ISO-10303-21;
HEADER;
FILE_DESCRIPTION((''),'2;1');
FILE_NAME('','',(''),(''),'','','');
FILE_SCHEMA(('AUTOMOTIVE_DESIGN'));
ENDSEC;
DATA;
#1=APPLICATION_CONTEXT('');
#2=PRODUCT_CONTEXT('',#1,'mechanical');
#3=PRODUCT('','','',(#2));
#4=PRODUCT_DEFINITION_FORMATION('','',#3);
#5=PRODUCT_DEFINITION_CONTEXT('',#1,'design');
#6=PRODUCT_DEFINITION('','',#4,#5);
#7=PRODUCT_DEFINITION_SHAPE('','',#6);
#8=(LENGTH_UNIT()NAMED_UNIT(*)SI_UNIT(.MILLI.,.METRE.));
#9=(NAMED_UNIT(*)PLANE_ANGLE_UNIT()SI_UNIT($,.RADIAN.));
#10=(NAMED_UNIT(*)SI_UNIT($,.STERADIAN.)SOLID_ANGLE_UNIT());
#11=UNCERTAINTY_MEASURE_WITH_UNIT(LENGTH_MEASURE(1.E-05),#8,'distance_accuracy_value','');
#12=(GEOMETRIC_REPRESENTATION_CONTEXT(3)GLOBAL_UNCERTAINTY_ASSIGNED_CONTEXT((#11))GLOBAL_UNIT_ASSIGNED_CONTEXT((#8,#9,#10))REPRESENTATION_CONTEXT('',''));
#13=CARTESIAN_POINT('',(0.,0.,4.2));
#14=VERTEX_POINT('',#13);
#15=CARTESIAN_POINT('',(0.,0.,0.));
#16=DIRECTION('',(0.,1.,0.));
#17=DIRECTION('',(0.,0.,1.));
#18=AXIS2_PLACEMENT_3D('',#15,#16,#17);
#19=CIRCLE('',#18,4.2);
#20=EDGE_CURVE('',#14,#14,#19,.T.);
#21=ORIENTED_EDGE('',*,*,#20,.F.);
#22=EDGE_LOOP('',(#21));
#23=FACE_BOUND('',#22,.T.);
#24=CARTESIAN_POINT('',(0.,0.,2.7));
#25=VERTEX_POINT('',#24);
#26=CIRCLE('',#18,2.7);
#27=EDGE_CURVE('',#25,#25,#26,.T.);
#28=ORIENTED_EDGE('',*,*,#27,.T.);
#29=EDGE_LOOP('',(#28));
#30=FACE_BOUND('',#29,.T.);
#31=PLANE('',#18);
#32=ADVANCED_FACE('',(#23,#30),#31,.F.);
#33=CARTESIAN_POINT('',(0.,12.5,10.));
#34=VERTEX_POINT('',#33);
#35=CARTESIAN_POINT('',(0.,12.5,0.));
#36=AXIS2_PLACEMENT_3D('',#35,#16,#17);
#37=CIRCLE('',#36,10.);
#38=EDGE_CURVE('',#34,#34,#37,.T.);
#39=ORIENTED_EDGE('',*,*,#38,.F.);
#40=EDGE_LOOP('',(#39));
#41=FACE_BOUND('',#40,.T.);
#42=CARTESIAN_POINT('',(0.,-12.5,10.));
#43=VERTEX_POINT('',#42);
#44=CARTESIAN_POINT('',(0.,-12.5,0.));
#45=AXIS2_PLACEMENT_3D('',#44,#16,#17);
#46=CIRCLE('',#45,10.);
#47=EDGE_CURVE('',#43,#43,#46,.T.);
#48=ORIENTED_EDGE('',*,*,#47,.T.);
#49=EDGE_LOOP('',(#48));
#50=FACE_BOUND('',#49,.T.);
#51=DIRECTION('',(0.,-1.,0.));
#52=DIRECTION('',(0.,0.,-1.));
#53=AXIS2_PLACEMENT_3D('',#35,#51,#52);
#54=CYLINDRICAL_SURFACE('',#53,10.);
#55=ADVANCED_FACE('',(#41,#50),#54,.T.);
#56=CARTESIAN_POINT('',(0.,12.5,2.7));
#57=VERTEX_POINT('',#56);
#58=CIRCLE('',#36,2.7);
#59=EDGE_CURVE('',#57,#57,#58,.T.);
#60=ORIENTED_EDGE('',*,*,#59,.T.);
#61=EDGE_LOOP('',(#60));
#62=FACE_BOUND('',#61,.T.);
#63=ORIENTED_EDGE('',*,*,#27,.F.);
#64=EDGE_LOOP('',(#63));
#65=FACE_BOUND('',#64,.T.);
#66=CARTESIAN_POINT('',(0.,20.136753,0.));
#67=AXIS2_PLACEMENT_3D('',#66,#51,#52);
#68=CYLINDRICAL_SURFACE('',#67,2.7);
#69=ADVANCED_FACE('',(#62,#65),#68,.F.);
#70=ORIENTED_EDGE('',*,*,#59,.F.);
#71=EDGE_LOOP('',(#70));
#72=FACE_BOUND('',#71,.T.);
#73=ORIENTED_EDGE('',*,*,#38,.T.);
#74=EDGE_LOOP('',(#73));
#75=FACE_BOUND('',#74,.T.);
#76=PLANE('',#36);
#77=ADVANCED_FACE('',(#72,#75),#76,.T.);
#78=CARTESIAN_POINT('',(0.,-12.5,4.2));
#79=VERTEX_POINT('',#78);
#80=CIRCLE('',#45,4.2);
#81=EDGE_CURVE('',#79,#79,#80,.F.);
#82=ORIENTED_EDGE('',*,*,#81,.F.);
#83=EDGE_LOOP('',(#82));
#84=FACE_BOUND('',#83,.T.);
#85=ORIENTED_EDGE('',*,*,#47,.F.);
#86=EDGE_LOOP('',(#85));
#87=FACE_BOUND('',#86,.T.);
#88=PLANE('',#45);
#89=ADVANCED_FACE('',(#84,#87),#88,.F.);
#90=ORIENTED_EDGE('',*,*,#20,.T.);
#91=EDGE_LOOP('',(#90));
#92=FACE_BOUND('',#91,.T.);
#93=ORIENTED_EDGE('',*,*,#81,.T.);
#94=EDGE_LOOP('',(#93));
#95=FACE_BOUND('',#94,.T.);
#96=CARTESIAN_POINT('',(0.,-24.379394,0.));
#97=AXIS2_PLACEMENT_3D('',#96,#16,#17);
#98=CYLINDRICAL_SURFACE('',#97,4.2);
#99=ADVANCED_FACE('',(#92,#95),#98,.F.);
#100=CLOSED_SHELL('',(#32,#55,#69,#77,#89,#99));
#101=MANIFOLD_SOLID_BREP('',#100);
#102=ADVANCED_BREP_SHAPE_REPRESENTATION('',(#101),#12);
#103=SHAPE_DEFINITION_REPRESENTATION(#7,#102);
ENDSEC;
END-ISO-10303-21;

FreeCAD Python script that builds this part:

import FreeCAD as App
import Part
import Sketcher
from FreeCAD import Vector
Q = App.Units.Quantity

doc = App.newDocument("Part")
body = doc.addObject("PartDesign::Body", "Body")

# Sketch on XZ plane
sketch1 = body.newObject("Sketcher::SketchObject", "Sketch")
sketch1.AttachmentSupport = (doc.getObject("XZ_Plane"), [""])
sketch1.MapMode = "FlatFace"
sketch1.addGeometry(Part.Circle(Vector(0, 0, 0), Vector(0, 0, 1), 10), False)
sketch1.addConstraint([
    Sketcher.Constraint("Coincident", 0, 3, -1, 1),
    Sketcher.Constraint("Diameter", 0, Q("20 mm")),
])
pad1 = body.newObject("PartDesign::Pad", "Pad")
pad1.Profile = sketch1
pad1.Length = 25
pad1.Midplane = True

# Sketch on XZ plane
sketch2 = body.newObject("Sketcher::SketchObject", "Sketch001")
sketch2.AttachmentSupport = (doc.getObject("XZ_Plane"), [""])
sketch2.MapMode = "FlatFace"
sketch2.addGeometry(Part.Circle(Vector(0, 0, 0), Vector(0, 0, 1), 2.7), False)
sketch2.addConstraint([
    Sketcher.Constraint("Coincident", 0, 3, -1, 1),
    Sketcher.Constraint("Diameter", 0, Q("5.4 mm")),
])
pocket1 = body.newObject("PartDesign::Pocket", "Pocket")
pocket1.Profile = sketch2
pocket1.Length = 12.5

# Sketch on XZ plane
sketch3 = body.newObject("Sketcher::SketchObject", "Sketch002")
sketch3.AttachmentSupport = (doc.getObject("XZ_Plane"), [""])
sketch3.MapMode = "FlatFace"
sketch3.addGeometry(Part.Circle(Vector(0, 0, 0), Vector(0, 0, 1), 4.2), False)
sketch3.addConstraint([
    Sketcher.Constraint("Coincident", 0, 3, -1, 1),
    Sketcher.Constraint("Diameter", 0, Q("8.4 mm")),
])
pocket2 = body.newObject("PartDesign::Pocket", "Pocket001")
pocket2.Profile = sketch3
pocket2.Length = 12.5
pocket2.Reversed = True

doc.recompute()
